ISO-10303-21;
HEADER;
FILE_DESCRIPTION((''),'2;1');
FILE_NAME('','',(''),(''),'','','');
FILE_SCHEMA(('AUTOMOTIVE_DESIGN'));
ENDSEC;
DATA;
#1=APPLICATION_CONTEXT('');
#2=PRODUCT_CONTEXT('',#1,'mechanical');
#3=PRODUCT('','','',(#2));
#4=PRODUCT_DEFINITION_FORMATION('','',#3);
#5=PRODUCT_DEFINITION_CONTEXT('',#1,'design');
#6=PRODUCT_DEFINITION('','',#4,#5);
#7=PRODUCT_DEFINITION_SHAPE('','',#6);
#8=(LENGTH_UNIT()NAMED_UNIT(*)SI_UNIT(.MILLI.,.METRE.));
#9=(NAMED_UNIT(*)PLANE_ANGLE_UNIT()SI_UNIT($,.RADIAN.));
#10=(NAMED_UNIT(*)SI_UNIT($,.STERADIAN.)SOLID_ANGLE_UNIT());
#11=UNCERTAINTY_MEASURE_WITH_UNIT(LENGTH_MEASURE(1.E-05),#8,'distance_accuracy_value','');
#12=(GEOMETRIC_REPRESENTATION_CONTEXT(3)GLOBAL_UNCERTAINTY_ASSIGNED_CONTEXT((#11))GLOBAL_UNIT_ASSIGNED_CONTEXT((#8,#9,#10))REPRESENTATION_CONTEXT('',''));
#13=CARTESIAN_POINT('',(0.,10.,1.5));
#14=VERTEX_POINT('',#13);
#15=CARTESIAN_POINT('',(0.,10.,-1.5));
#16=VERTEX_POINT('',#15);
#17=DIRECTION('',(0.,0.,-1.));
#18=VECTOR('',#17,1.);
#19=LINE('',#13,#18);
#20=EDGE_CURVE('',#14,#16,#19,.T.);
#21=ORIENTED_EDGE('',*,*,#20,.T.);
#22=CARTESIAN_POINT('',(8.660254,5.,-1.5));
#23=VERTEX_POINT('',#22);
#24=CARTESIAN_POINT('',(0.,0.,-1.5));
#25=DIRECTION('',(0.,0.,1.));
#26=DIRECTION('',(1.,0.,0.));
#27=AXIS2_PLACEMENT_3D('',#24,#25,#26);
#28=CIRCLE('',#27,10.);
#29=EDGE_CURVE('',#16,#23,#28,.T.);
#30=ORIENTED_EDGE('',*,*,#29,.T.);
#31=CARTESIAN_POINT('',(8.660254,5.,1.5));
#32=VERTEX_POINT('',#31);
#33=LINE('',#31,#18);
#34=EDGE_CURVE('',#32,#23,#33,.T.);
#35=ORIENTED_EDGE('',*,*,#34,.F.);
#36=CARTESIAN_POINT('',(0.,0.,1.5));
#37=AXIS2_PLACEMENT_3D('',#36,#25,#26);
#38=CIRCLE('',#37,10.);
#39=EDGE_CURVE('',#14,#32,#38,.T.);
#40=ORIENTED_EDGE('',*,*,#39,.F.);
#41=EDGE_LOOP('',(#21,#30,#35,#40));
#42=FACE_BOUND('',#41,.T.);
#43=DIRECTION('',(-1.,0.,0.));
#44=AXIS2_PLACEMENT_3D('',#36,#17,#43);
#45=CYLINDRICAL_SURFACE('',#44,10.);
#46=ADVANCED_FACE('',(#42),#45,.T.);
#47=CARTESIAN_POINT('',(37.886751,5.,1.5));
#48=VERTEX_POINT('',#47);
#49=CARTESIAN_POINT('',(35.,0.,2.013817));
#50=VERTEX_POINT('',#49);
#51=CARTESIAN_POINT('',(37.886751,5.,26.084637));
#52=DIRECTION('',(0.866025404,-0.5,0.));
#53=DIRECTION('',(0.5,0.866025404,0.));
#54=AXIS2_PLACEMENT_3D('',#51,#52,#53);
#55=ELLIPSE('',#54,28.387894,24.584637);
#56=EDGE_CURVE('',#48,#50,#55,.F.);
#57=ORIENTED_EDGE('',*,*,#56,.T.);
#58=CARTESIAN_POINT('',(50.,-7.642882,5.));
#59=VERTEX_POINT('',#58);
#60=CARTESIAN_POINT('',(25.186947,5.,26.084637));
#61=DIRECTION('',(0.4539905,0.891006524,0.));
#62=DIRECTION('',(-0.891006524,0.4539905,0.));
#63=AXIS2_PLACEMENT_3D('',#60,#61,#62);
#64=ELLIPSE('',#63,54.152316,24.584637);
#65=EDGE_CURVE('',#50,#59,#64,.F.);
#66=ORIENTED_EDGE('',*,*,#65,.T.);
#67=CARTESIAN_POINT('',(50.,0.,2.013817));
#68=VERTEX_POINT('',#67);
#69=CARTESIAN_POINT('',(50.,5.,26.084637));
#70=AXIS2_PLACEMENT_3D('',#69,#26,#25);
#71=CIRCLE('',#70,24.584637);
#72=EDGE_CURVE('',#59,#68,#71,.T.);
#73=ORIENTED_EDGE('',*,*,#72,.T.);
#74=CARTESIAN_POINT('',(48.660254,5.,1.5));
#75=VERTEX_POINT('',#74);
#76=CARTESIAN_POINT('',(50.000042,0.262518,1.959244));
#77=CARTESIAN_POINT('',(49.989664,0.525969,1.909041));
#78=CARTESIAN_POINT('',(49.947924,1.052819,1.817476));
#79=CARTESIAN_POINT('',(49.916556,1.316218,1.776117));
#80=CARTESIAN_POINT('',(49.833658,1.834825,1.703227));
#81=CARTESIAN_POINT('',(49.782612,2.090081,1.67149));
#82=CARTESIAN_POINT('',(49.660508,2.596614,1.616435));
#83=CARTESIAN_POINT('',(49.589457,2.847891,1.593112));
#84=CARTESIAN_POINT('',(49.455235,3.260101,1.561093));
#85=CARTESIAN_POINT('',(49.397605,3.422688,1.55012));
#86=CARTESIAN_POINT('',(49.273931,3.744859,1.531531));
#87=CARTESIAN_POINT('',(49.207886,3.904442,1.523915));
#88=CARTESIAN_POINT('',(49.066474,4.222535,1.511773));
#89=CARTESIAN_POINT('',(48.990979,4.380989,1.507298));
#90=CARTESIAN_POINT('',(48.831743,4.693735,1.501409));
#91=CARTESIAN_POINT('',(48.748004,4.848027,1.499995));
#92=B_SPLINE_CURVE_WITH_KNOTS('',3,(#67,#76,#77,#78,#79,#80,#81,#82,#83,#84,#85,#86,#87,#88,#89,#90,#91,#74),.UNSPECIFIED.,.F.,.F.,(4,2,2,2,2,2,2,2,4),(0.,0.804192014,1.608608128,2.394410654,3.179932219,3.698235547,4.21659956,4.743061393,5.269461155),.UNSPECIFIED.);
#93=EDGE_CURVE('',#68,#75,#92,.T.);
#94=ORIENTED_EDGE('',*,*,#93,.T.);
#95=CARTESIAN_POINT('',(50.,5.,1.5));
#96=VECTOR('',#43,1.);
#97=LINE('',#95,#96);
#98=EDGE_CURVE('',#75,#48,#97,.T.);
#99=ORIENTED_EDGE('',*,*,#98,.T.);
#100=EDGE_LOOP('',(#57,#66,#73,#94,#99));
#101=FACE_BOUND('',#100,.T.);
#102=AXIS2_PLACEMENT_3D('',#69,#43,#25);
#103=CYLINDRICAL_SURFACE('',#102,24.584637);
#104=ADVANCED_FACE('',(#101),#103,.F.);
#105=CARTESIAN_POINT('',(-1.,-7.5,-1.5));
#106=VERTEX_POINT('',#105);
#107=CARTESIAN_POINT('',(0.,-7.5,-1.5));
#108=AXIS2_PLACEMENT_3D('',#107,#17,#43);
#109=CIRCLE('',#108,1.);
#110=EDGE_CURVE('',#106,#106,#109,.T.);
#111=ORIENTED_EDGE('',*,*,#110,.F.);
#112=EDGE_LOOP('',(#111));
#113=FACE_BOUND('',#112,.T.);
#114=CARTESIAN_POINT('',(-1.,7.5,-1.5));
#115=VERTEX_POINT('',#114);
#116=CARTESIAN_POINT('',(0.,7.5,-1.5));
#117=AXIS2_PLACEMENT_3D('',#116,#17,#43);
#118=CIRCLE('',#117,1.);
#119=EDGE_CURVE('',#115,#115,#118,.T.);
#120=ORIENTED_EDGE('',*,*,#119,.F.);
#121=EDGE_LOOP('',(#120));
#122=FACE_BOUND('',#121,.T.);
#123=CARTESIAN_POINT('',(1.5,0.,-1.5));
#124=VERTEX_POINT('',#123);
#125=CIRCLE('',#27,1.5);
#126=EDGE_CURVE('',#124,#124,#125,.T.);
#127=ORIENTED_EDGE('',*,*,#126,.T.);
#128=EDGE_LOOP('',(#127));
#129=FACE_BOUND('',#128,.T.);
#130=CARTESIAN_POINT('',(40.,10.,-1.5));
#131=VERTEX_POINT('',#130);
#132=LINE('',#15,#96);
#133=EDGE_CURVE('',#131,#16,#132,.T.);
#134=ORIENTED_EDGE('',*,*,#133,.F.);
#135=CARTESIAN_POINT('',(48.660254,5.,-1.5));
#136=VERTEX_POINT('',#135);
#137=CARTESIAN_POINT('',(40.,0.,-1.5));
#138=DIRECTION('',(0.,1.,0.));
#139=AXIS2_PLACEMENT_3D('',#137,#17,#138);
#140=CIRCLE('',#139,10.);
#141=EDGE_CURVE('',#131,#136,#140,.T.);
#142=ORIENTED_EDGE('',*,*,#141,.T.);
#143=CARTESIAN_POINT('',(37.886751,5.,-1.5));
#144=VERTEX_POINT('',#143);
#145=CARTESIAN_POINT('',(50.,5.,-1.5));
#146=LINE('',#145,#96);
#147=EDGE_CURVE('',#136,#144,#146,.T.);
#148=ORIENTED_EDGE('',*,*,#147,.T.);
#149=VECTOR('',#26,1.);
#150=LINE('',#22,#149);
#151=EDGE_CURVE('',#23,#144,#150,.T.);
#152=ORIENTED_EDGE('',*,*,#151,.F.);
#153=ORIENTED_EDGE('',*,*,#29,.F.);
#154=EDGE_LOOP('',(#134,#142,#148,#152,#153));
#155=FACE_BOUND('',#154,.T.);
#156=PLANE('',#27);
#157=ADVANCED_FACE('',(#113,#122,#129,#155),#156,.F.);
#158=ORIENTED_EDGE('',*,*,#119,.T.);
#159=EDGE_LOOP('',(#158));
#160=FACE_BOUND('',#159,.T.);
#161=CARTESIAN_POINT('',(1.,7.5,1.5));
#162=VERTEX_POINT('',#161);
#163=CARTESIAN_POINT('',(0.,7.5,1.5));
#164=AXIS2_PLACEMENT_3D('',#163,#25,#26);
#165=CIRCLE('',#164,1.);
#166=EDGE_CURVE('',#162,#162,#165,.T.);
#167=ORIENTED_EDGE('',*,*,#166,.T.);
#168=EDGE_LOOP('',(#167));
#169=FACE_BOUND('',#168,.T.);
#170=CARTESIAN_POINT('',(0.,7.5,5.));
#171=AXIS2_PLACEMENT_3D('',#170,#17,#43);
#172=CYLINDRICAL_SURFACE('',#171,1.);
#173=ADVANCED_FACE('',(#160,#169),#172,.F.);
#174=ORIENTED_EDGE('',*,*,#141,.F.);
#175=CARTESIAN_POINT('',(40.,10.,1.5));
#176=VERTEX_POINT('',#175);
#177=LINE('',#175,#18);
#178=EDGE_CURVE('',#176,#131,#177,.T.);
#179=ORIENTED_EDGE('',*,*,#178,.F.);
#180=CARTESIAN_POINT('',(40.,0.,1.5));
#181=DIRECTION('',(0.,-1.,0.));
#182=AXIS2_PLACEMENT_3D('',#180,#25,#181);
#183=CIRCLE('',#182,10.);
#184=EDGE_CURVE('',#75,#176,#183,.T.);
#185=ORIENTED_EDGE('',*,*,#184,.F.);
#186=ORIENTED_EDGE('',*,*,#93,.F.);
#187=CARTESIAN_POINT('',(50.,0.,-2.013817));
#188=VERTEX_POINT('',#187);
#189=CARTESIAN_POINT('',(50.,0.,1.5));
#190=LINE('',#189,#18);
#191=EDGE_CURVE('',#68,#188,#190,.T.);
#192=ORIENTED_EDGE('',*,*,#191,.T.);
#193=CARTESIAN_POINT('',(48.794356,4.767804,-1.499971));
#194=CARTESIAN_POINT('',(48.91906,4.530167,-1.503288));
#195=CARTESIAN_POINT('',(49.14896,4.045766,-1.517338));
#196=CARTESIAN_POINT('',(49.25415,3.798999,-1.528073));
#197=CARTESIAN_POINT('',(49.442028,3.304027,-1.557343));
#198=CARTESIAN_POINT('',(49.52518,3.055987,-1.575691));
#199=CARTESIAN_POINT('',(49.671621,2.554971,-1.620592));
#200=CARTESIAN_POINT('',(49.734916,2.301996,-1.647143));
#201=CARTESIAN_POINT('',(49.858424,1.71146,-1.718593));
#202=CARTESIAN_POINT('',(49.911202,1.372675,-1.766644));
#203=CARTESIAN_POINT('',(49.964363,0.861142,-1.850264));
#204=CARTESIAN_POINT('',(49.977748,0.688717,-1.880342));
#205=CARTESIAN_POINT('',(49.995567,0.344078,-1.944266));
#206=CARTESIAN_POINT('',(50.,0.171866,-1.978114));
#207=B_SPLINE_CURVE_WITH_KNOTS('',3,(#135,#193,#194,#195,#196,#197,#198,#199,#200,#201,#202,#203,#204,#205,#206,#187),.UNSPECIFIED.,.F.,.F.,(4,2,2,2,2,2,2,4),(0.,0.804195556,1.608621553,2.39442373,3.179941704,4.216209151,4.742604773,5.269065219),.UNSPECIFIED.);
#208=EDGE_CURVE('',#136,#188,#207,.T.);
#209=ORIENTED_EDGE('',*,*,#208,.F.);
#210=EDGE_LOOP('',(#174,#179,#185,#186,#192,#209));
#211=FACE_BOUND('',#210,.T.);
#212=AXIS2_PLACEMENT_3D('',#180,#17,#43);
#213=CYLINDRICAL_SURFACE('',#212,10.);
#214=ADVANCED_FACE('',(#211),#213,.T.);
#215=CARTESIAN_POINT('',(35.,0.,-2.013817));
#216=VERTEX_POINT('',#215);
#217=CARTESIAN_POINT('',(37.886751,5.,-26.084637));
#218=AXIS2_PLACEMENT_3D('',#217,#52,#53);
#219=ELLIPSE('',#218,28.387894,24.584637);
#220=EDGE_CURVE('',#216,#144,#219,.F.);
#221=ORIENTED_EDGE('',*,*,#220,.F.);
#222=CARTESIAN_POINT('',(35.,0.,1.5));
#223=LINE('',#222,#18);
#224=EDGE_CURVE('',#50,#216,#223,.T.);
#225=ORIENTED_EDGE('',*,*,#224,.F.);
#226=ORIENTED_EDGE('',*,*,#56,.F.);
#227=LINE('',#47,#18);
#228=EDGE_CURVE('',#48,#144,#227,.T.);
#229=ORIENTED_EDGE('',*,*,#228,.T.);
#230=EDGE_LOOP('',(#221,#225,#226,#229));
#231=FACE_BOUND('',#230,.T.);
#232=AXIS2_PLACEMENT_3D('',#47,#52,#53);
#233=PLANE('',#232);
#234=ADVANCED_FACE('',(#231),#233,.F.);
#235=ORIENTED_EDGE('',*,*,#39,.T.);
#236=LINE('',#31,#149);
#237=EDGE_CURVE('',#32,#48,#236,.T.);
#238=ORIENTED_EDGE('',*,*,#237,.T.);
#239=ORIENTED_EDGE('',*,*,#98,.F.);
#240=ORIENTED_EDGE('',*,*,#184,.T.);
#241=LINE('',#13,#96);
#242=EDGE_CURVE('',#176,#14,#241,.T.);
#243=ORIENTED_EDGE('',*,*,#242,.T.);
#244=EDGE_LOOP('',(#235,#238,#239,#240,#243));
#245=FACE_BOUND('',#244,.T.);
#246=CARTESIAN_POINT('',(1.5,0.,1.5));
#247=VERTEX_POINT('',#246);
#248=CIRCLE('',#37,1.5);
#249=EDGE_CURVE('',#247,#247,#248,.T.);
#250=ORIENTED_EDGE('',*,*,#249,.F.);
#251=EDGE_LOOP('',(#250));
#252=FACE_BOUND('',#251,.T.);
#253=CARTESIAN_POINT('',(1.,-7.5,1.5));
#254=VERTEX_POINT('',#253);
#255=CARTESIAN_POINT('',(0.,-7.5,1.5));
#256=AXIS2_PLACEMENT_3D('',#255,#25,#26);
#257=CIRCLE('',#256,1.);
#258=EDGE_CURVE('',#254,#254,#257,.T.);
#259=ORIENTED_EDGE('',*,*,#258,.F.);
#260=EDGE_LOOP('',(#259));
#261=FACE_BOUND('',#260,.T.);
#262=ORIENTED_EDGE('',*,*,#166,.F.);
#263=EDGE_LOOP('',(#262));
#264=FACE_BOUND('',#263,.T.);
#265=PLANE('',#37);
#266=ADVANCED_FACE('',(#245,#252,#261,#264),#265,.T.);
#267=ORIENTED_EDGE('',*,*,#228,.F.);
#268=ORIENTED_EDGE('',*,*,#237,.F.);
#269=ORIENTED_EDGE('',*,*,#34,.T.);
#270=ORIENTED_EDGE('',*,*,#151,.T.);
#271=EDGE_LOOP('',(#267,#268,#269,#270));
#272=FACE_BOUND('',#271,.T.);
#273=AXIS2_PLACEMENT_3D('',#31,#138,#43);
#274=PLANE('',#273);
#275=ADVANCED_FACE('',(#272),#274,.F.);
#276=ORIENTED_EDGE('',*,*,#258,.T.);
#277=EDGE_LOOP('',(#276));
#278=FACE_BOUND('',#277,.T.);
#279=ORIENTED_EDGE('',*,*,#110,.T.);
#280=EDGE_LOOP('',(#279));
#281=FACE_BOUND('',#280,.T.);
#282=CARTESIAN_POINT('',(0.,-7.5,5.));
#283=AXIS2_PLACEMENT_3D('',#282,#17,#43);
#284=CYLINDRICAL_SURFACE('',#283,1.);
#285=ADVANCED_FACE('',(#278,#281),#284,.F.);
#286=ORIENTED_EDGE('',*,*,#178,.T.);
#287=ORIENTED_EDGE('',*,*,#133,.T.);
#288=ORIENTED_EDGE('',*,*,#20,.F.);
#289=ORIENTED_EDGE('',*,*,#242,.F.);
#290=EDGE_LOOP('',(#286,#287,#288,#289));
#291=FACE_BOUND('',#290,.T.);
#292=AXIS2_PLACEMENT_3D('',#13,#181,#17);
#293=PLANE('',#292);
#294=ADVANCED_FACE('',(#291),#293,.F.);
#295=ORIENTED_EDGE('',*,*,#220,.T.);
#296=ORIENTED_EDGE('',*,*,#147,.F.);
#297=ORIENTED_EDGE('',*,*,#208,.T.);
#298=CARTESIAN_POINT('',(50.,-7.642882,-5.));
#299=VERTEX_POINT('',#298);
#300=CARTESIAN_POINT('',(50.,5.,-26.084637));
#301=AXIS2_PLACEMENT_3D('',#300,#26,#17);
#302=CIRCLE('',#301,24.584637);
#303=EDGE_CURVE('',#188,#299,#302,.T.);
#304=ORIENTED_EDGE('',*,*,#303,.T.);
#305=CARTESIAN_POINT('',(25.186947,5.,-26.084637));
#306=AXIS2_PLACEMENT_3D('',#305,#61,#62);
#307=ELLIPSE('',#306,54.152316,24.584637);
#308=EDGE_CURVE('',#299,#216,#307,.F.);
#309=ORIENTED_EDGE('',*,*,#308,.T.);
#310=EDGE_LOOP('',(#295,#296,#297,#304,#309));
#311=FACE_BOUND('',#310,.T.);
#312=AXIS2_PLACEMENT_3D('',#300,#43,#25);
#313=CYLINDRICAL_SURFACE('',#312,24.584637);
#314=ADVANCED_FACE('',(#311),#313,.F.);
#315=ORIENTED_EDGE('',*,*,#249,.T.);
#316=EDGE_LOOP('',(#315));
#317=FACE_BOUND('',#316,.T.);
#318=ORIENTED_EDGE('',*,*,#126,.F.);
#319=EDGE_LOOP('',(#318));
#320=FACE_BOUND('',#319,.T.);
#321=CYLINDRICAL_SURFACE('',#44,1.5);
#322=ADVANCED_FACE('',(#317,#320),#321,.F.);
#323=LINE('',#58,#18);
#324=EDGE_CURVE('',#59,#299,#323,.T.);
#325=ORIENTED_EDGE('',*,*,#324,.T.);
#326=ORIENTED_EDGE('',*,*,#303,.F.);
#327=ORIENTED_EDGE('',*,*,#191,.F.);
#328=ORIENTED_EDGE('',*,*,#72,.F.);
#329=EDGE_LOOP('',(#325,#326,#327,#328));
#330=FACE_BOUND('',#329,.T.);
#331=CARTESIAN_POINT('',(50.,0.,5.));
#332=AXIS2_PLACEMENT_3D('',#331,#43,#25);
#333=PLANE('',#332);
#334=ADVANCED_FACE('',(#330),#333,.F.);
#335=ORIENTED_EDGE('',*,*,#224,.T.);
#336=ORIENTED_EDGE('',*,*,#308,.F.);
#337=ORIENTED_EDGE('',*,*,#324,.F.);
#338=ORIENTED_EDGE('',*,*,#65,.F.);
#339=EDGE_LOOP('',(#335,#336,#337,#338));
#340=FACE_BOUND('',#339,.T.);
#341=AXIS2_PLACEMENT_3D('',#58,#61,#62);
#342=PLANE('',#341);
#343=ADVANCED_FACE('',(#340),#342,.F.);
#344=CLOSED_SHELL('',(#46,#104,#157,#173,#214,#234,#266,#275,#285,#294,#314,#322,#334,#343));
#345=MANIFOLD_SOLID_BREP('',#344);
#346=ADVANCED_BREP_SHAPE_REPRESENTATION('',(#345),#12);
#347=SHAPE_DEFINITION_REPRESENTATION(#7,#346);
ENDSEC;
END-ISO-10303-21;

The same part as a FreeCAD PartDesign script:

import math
import FreeCAD as App
import Part
import Sketcher
Q = App.Units.Quantity


def add_polygon(sketch, points):
    """Adds a closed chain of lines whose ends are joined by coincident constraints."""
    first, n = sketch.GeometryCount, len(points)
    for a, b in zip(points, points[1:] + points[:1]):
        sketch.addGeometry(Part.LineSegment(App.Vector(*a, 0), App.Vector(*b, 0)), False)
    for i in range(n):
        sketch.addConstraint(Sketcher.Constraint("Coincident", first + i, 2, first + (i + 1) % n, 1))

doc = App.newDocument("Part")
body = doc.addObject("PartDesign::Body", "Body")

# Sketch on XY plane
sketch1 = body.newObject("Sketcher::SketchObject", "Sketch")
sketch1.AttachmentSupport = (doc.getObject("XY_Plane"), [""])
sketch1.MapMode = "FlatFace"
sketch1.addGeometry(Part.LineSegment(App.Vector(40, 10, 0), App.Vector(0, 10, 0)), False)
sketch1.addGeometry(Part.ArcOfCircle(Part.Circle(App.Vector(0, 0, 0), App.Vector(0, 0, 1), 10), math.radians(90), math.radians(390)), False)
sketch1.addGeometry(Part.LineSegment(App.Vector(8.7, 5, 0), App.Vector(37.9, 5, 0)), False)
sketch1.addGeometry(Part.LineSegment(App.Vector(37.9, 5, 0), App.Vector(35, 0, 0)), False)
sketch1.addGeometry(Part.LineSegment(App.Vector(35, 0, 0), App.Vector(50, 0, 0)), False)
sketch1.addGeometry(Part.ArcOfCircle(Part.Circle(App.Vector(40, 0, 0), App.Vector(0, 0, 1), 10), math.radians(0), math.radians(90)), False)
sketch1.addGeometry(Part.Circle(App.Vector(0, 0, 0), App.Vector(0, 0, 1), 1.5), False)
sketch1.addConstraint(Sketcher.Constraint("Tangent", 0, 2, 1, 1))
sketch1.addConstraint(Sketcher.Constraint("Coincident", 1, 2, 2, 1))
sketch1.addConstraint(Sketcher.Constraint("Coincident", 2, 2, 3, 1))
sketch1.addConstraint(Sketcher.Constraint("Coincident", 3, 2, 4, 1))
sketch1.addConstraint(Sketcher.Constraint("Coincident", 4, 2, 5, 1))
sketch1.addConstraint(Sketcher.Constraint("Tangent", 5, 2, 0, 1))
sketch1.addConstraint(Sketcher.Constraint("Horizontal", 0))
sketch1.addConstraint(Sketcher.Constraint("Horizontal", 2))
sketch1.addConstraint(Sketcher.Constraint("Horizontal", 4))
sketch1.addConstraint(Sketcher.Constraint("Coincident", 1, 3, -1, 1))
sketch1.addConstraint(Sketcher.Constraint("Coincident", 6, 3, -1, 1))
sketch1.addConstraint(Sketcher.Constraint("Equal", 1, 5))
sketch1.addConstraint(Sketcher.Constraint("PointOnObject", 3, 2, -1))
sketch1.addConstraint(Sketcher.Constraint("Diameter", 6, Q("3 mm")))
sketch1.addConstraint(Sketcher.Constraint("Radius", 1, Q("10 mm")))
sketch1.addConstraint(Sketcher.Constraint("DistanceX", 0, 2, 0, 1, Q("40 mm")))
sketch1.addConstraint(Sketcher.Constraint("DistanceX", 4, 1, 4, 2, Q("15 mm")))
sketch1.addConstraint(Sketcher.Constraint("Angle", 3, Q("-119.999997 deg")))
sketch1.addConstraint(Sketcher.Constraint("DistanceY", -1, 1, 1, 2, Q("5 mm")))
pad1 = body.newObject("PartDesign::Pad", "Pad")
pad1.Profile = sketch1
pad1.Length = 3
pad1.Midplane = True

# Sketch on XY plane
sketch2 = body.newObject("Sketcher::SketchObject", "Sketch001")
sketch2.AttachmentSupport = (doc.getObject("XY_Plane"), [""])
sketch2.MapMode = "FlatFace"
sketch2.addGeometry(Part.LineSegment(App.Vector(37.9, 10, 0), App.Vector(37.9, 5, 0)), False)
sketch2.addGeometry(Part.LineSegment(App.Vector(37.9, 5, 0), App.Vector(35, 0, 0)), False)
sketch2.addGeometry(Part.LineSegment(App.Vector(35, 0, 0), App.Vector(50, -7.6, 0)), False)
sketch2.addGeometry(Part.LineSegment(App.Vector(50, -7.6, 0), App.Vector(50, 0, 0)), False)
sketch2.addGeometry(Part.ArcOfCircle(Part.Circle(App.Vector(40, 0, 0), App.Vector(0, 0, 1), 10), math.radians(0), math.radians(90)), False)
sketch2.addGeometry(Part.LineSegment(App.Vector(40, 10, 0), App.Vector(37.9, 10, 0)), False)
sketch2.addConstraint(Sketcher.Constraint("Coincident", 0, 2, 1, 1))
sketch2.addConstraint(Sketcher.Constraint("Coincident", 1, 2, 2, 1))
sketch2.addConstraint(Sketcher.Constraint("Coincident", 2, 2, 3, 1))
sketch2.addConstraint(Sketcher.Constraint("Tangent", 3, 2, 4, 1))
sketch2.addConstraint(Sketcher.Constraint("Tangent", 4, 2, 5, 1))
sketch2.addConstraint(Sketcher.Constraint("Coincident", 5, 2, 0, 1))
sketch2.addConstraint(Sketcher.Constraint("Vertical", 0))
sketch2.addConstraint(Sketcher.Constraint("Vertical", 3))
sketch2.addConstraint(Sketcher.Constraint("Horizontal", 5))
sketch2.addConstraint(Sketcher.Constraint("PointOnObject", 4, 3, -1))
sketch2.addConstraint(Sketcher.Constraint("PointOnObject", 1, 2, -1))
sketch2.addConstraint(Sketcher.Constraint("Radius", 4, Q("9.999999 mm")))
sketch2.addConstraint(Sketcher.Constraint("DistanceY", 0, 2, 0, 1, Q("5 mm")))
sketch2.addConstraint(Sketcher.Constraint("Angle", 1, Q("-119.999997 deg")))
sketch2.addConstraint(Sketcher.Constraint("Angle", 2, Q("-27.000001 deg")))
sketch2.addConstraint(Sketcher.Constraint("DistanceX", -1, 1, 4, 3, Q("40.000001 mm")))
sketch2.addConstraint(Sketcher.Constraint("DistanceX", -1, 1, 1, 2, Q("35 mm")))
pad2 = body.newObject("PartDesign::Pad", "Pad001")
pad2.Profile = sketch2
pad2.Length = 10
pad2.Midplane = True

# Sketch on YZ plane
sketch3 = body.newObject("Sketcher::SketchObject", "Sketch002")
sketch3.AttachmentSupport = (doc.getObject("YZ_Plane"), [""])
sketch3.MapMode = "FlatFace"
sketch3.AttachmentOffset = App.Placement(App.Vector(0, 0, 50), App.Rotation())
add_polygon(sketch3, [(17.4, -12.4), (-17.4, -12.4), (-17.4, 12.4), (17.4, 12.4)])  # lines 0-3
sketch3.addGeometry(Part.LineSegment(App.Vector(5, -1.5, 0), App.Vector(10, -1.5, 0)), False)  # 4
sketch3.addGeometry(Part.LineSegment(App.Vector(10, -1.5, 0), App.Vector(10, 1.5, 0)), False)  # 5
sketch3.addGeometry(Part.LineSegment(App.Vector(10, 1.5, 0), App.Vector(5, 1.5, 0)), False)  # 6
sketch3.addGeometry(Part.ArcOfCircle(Part.Circle(App.Vector(5, 26.1, 0), App.Vector(0, 0, 1), 24.6), math.radians(-121), math.radians(-90)), False)  # 7
sketch3.addGeometry(Part.LineSegment(App.Vector(-7.6, 5, 0), App.Vector(-7.6, -5, 0)), False)  # 8
sketch3.addGeometry(Part.ArcOfCircle(Part.Circle(App.Vector(5, -26.1, 0), App.Vector(0, 0, 1), 24.6), math.radians(90), math.radians(121)), False)  # 9
sketch3.addConstraint(Sketcher.Constraint("Coincident", 4, 2, 5, 1))
sketch3.addConstraint(Sketcher.Constraint("Coincident", 5, 2, 6, 1))
sketch3.addConstraint(Sketcher.Constraint("Tangent", 6, 2, 7, 2))
sketch3.addConstraint(Sketcher.Constraint("Coincident", 7, 1, 8, 1))
sketch3.addConstraint(Sketcher.Constraint("Coincident", 8, 2, 9, 2))
sketch3.addConstraint(Sketcher.Constraint("Tangent", 9, 1, 4, 1))
sketch3.addConstraint(Sketcher.Constraint("Horizontal", 0))
sketch3.addConstraint(Sketcher.Constraint("Vertical", 1))
sketch3.addConstraint(Sketcher.Constraint("Horizontal", 2))
sketch3.addConstraint(Sketcher.Constraint("Vertical", 3))
sketch3.addConstraint(Sketcher.Constraint("Horizontal", 4))
sketch3.addConstraint(Sketcher.Constraint("Vertical", 5))
sketch3.addConstraint(Sketcher.Constraint("Horizontal", 6))
sketch3.addConstraint(Sketcher.Constraint("Vertical", 8))
sketch3.addConstraint(Sketcher.Constraint("Equal", 7, 9))
sketch3.addConstraint(Sketcher.Constraint("Symmetric", 0, 2, 2, 2, -1, 1))
sketch3.addConstraint(Sketcher.Constraint("Symmetric", 7, 3, 9, 3, -1))
sketch3.addConstraint(Sketcher.Constraint("DistanceX", 4, 1, 4, 2, Q("5 mm")))
sketch3.addConstraint(Sketcher.Constraint("DistanceY", 5, 1, 5, 2, Q("3 mm")))
sketch3.addConstraint(Sketcher.Constraint("DistanceY", 8, 2, 8, 1, Q("10 mm")))
sketch3.addConstraint(Sketcher.Constraint("DistanceX", -1, 1, 4, 2, Q("10 mm")))
sketch3.addConstraint(Sketcher.Constraint("DistanceX", 0, 2, 0, 1, Q("34.806 mm")))
sketch3.addConstraint(Sketcher.Constraint("DistanceY", 1, 1, 1, 2, Q("24.806 mm")))
sketch3.addConstraint(Sketcher.Constraint("Radius", 7, Q("24.584628 mm")))
pocket1 = body.newObject("PartDesign::Pocket", "Pocket")
pocket1.Profile = sketch3
pocket1.Length = 15

# Sketch on XY plane
sketch4 = body.newObject("Sketcher::SketchObject", "Sketch003")
sketch4.AttachmentSupport = (doc.getObject("XY_Plane"), [""])
sketch4.MapMode = "FlatFace"
sketch4.AttachmentOffset = App.Placement(App.Vector(0, 0, -1.5), App.Rotation())
sketch4.addGeometry(Part.Circle(App.Vector(0, 7.5, 0), App.Vector(0, 0, 1), 1), False)
sketch4.addGeometry(Part.Circle(App.Vector(0, -7.5, 0), App.Vector(0, 0, 1), 1), False)
sketch4.addConstraint(Sketcher.Constraint("Equal", 0, 1))
sketch4.addConstraint(Sketcher.Constraint("Symmetric", 0, 3, 1, 3, -1, 1))
sketch4.addConstraint(Sketcher.Constraint("PointOnObject", 0, 3, -2))
sketch4.addConstraint(Sketcher.Constraint("Diameter", 0, Q("2 mm")))
sketch4.addConstraint(Sketcher.Constraint("DistanceY", 1, 3, 0, 3, Q("15 mm")))
pocket2 = body.newObject("PartDesign::Pocket", "Pocket001")
pocket2.Profile = sketch4
pocket2.Type = "ThroughAll"
pocket2.Reversed = True

doc.recompute()
